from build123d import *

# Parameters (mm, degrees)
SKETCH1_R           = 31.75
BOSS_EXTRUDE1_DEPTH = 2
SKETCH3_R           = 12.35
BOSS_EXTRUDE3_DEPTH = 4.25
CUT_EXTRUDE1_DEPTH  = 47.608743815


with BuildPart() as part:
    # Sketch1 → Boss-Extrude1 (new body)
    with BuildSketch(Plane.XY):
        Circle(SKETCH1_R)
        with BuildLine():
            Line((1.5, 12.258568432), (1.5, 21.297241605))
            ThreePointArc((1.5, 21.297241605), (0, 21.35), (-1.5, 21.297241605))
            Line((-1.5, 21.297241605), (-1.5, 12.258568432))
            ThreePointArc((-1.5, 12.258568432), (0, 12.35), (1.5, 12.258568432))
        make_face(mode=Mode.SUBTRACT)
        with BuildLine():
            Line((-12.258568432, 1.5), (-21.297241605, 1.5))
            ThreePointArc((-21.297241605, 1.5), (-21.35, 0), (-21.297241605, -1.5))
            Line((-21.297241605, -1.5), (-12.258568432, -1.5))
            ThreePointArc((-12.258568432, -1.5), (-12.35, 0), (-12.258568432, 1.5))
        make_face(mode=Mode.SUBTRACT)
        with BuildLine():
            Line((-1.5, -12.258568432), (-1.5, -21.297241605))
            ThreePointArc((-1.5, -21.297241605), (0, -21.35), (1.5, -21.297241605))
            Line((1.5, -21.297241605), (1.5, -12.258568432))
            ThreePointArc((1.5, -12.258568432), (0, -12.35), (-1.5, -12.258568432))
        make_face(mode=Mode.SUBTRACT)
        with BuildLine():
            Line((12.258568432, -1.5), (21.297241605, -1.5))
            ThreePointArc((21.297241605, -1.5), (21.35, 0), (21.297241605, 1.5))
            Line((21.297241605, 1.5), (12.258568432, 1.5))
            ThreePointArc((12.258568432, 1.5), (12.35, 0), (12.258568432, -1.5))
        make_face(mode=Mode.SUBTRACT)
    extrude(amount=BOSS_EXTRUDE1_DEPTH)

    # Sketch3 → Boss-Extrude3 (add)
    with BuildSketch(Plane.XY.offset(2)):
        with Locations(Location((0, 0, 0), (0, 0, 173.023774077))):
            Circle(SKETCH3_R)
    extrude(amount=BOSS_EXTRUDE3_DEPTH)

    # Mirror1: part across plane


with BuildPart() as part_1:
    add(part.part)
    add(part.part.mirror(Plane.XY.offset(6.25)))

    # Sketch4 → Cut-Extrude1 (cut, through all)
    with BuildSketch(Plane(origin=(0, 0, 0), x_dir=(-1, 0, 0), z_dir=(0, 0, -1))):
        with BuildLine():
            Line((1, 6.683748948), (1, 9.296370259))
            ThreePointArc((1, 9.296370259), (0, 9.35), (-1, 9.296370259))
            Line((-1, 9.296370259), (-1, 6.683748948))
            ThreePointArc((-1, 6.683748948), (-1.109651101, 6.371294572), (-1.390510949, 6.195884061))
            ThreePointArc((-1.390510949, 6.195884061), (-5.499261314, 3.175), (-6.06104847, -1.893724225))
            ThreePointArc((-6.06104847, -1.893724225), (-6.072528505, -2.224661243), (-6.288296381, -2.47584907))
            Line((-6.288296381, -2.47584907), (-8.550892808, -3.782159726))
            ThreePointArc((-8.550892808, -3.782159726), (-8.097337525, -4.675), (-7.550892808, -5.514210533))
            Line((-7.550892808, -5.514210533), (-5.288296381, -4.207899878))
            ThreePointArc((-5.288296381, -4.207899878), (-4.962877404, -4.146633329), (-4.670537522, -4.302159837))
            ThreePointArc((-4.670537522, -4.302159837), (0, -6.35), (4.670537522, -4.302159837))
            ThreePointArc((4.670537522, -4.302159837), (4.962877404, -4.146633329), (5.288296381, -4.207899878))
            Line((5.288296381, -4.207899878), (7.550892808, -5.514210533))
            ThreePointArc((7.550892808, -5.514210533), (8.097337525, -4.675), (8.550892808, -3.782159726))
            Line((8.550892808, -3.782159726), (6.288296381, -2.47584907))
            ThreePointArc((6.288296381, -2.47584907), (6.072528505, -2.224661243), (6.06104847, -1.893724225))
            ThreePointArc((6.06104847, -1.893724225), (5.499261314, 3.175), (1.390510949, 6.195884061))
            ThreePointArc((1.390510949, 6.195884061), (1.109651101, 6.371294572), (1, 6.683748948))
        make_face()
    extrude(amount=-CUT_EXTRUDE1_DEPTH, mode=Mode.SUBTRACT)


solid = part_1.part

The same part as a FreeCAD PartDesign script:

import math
import FreeCAD as App
import Part
import Sketcher
from FreeCAD import Vector
Q = App.Units.Quantity

doc = App.newDocument("Part")
params = doc.addObject("Spreadsheet::Sheet", "Params")
for row, (alias, value) in enumerate([
    ("sketch1_diameter", "63.5 mm"),
    ("sketch1_radius", "12.35 mm"),
    ("sketch1_radius2", "21.35 mm"),
    ("pad1_length", "2 mm"),
    ("sketch2_diameter", "24.7 mm"),
    ("pad2_length", "4.25 mm"),
    ("sketch3_radius", "0.5 mm"),
    ("sketch3_radius2", "9.35 mm"),
    ("sketch3_radius3", "6.35 mm"),
], start=1):
    params.set(f"A{row}", alias)
    params.set(f"B{row}", "=" + value)
    params.setAlias(f"B{row}", alias)

body = doc.addObject("PartDesign::Body", "Body")

# Sketch on XY plane
sketch1 = doc.addObject("Sketcher::SketchObject", "Sketch")
body.addObject(sketch1)
sketch1.AttachmentSupport = (doc.XY_Plane, [""])
sketch1.MapMode = "FlatFace"
sketch1.addGeometry(Part.Circle(Vector(0, 0, 0), Vector(0, 0, 1), 31.75), False)
sketch1.addGeometry(Part.LineSegment(Vector(-1.5, -21.297242, 0), Vector(-1.5, -12.258568, 0)), False)
sketch1.addGeometry(Part.ArcOfCircle(Part.Circle(Vector(0, 0, 0), Vector(0, 0, 1), 12.35), math.radians(-96.976226), math.radians(-83.023774)), False)
sketch1.addGeometry(Part.LineSegment(Vector(1.5, -12.258568, 0), Vector(1.5, -21.297242, 0)), False)
sketch1.addGeometry(Part.ArcOfCircle(Part.Circle(Vector(0, 0, 0), Vector(0, 0, 1), 21.35), math.radians(-94.028784), math.radians(-85.971216)), False)
sketch1.addGeometry(Part.LineSegment(Vector(21.297242, -1.5, 0), Vector(12.258568, -1.5, 0)), False)
sketch1.addGeometry(Part.ArcOfCircle(Part.Circle(Vector(0, 0, 0), Vector(0, 0, 1), 12.35), math.radians(-6.976226), math.radians(6.976226)), False)
sketch1.addGeometry(Part.LineSegment(Vector(12.258568, 1.5, 0), Vector(21.297242, 1.5, 0)), False)
sketch1.addGeometry(Part.ArcOfCircle(Part.Circle(Vector(0, 0, 0), Vector(0, 0, 1), 21.35), math.radians(-4.028784), math.radians(4.028784)), False)
sketch1.addGeometry(Part.LineSegment(Vector(-21.297242, 1.5, 0), Vector(-12.258568, 1.5, 0)), False)
sketch1.addGeometry(Part.ArcOfCircle(Part.Circle(Vector(0, 0, 0), Vector(0, 0, 1), 12.35), math.radians(173.023774), math.radians(186.976226)), False)
sketch1.addGeometry(Part.LineSegment(Vector(-12.258568, -1.5, 0), Vector(-21.297242, -1.5, 0)), False)
sketch1.addGeometry(Part.ArcOfCircle(Part.Circle(Vector(0, 0, 0), Vector(0, 0, 1), 21.35), math.radians(175.971216), math.radians(184.028784)), False)
sketch1.addGeometry(Part.LineSegment(Vector(1.5, 21.297242, 0), Vector(1.5, 12.258568, 0)), False)
sketch1.addGeometry(Part.ArcOfCircle(Part.Circle(Vector(0, 0, 0), Vector(0, 0, 1), 12.35), math.radians(83.023774), math.radians(96.976226)), False)
sketch1.addGeometry(Part.LineSegment(Vector(-1.5, 12.258568, 0), Vector(-1.5, 21.297242, 0)), False)
sketch1.addGeometry(Part.ArcOfCircle(Part.Circle(Vector(0, 0, 0), Vector(0, 0, 1), 21.35), math.radians(85.971216), math.radians(94.028784)), False)
sketch1.addConstraint(Sketcher.Constraint("Coincident", 1, 2, 2, 1))
sketch1.addConstraint(Sketcher.Constraint("Coincident", 2, 2, 3, 1))
sketch1.addConstraint(Sketcher.Constraint("Coincident", 3, 2, 4, 2))
sketch1.addConstraint(Sketcher.Constraint("Coincident", 4, 1, 1, 1))
sketch1.addConstraint(Sketcher.Constraint("Coincident", 5, 2, 6, 1))
sketch1.addConstraint(Sketcher.Constraint("Coincident", 6, 2, 7, 1))
sketch1.addConstraint(Sketcher.Constraint("Coincident", 7, 2, 8, 2))
sketch1.addConstraint(Sketcher.Constraint("Coincident", 8, 1, 5, 1))
sketch1.addConstraint(Sketcher.Constraint("Coincident", 9, 2, 10, 1))
sketch1.addConstraint(Sketcher.Constraint("Coincident", 10, 2, 11, 1))
sketch1.addConstraint(Sketcher.Constraint("Coincident", 11, 2, 12, 2))
sketch1.addConstraint(Sketcher.Constraint("Coincident", 12, 1, 9, 1))
sketch1.addConstraint(Sketcher.Constraint("Coincident", 13, 2, 14, 1))
sketch1.addConstraint(Sketcher.Constraint("Coincident", 14, 2, 15, 1))
sketch1.addConstraint(Sketcher.Constraint("Coincident", 15, 2, 16, 2))
sketch1.addConstraint(Sketcher.Constraint("Coincident", 16, 1, 13, 1))
sketch1.addConstraint(Sketcher.Constraint("Vertical", 1))
sketch1.addConstraint(Sketcher.Constraint("Vertical", 3))
sketch1.addConstraint(Sketcher.Constraint("Horizontal", 5))
sketch1.addConstraint(Sketcher.Constraint("Horizontal", 7))
sketch1.addConstraint(Sketcher.Constraint("Horizontal", 9))
sketch1.addConstraint(Sketcher.Constraint("Horizontal", 11))
sketch1.addConstraint(Sketcher.Constraint("Vertical", 13))
sketch1.addConstraint(Sketcher.Constraint("Vertical", 15))
sketch1.addConstraint(Sketcher.Constraint("Coincident", 0, 3, -1, 1))
sketch1.addConstraint(Sketcher.Constraint("Coincident", 2, 3, -1, 1))
sketch1.addConstraint(Sketcher.Constraint("Coincident", 4, 3, -1, 1))
sketch1.addConstraint(Sketcher.Constraint("Coincident", 6, 3, -1, 1))
sketch1.addConstraint(Sketcher.Constraint("Coincident", 8, 3, -1, 1))
sketch1.addConstraint(Sketcher.Constraint("Coincident", 10, 3, -1, 1))
sketch1.addConstraint(Sketcher.Constraint("Coincident", 12, 3, -1, 1))
sketch1.addConstraint(Sketcher.Constraint("Coincident", 14, 3, -1, 1))
sketch1.addConstraint(Sketcher.Constraint("Coincident", 16, 3, -1, 1))
sketch1.addConstraint(Sketcher.Constraint("Equal", 2, 6))
sketch1.addConstraint(Sketcher.Constraint("Equal", 4, 8))
sketch1.addConstraint(Sketcher.Constraint("Equal", 6, 10))
sketch1.addConstraint(Sketcher.Constraint("Equal", 8, 12))
sketch1.addConstraint(Sketcher.Constraint("Equal", 10, 14))
sketch1.addConstraint(Sketcher.Constraint("Equal", 12, 16))
sketch1.addConstraint(Sketcher.Constraint("Horizontal", 1, 2, 2, 2))
sketch1.addConstraint(Sketcher.Constraint("Horizontal", 7, 2, 9, 2))
sketch1.addConstraint(Sketcher.Constraint("Horizontal", 8, 1, 10, 2))
sketch1.addConstraint(Sketcher.Constraint("Horizontal", 13, 2, 14, 2))
sketch1.addConstraint(Sketcher.Constraint("Vertical", 5, 2, 6, 2))
sketch1.addConstraint(Sketcher.Constraint("Vertical", 3, 2, 13, 2))
sketch1.addConstraint(Sketcher.Constraint("Equal", 11, 1))
sketch1.addConstraint(Sketcher.Constraint("Diameter", 0, 63.5))
sketch1.addConstraint(Sketcher.Constraint("Radius", 2, 12.35))
sketch1.addConstraint(Sketcher.Constraint("Radius", 4, 21.35))
sketch1.addConstraint(Sketcher.Constraint("DistanceX", 1, 2, 2, 2, 3.0))
sketch1.setExpression("Constraints[46]", "Params.sketch1_diameter")
sketch1.setExpression("Constraints[47]", "Params.sketch1_radius")
sketch1.setExpression("Constraints[48]", "Params.sketch1_radius2")
pad1 = doc.addObject("PartDesign::Pad", "Pad")
body.addObject(pad1)
pad1.Profile = sketch1
pad1.setExpression("Length", "Params.pad1_length")

# Sketch on XY plane
sketch2 = doc.addObject("Sketcher::SketchObject", "Sketch001")
body.addObject(sketch2)
sketch2.AttachmentSupport = (doc.XY_Plane, [""])
sketch2.MapMode = "FlatFace"
sketch2.AttachmentOffset = App.Placement(Vector(0, 0, 2), App.Rotation())
sketch2.addGeometry(Part.Circle(Vector(0, 0, 0), Vector(0, 0, 1), 12.35), False)
sketch2.addConstraint(Sketcher.Constraint("Coincident", 0, 3, -1, 1))
sketch2.addConstraint(Sketcher.Constraint("Diameter", 0, 24.7))
sketch2.setExpression("Constraints[1]", "Params.sketch2_diameter")
pad2 = doc.addObject("PartDesign::Pad", "Pad001")
body.addObject(pad2)
pad2.Profile = sketch2
pad2.setExpression("Length", "Params.pad2_length")
body2 = doc.addObject("PartDesign::Body", "Body001")
doc.recompute()

body2.BaseFeature = body
doc.recompute()

mirroring = doc.addObject("Part::Mirroring", "Mirroring")
mirroring.Source = body
mirroring.Base = Vector(0, 0, 6.25)
mirroring.Normal = Vector(0, 0, 1)
body3 = doc.addObject("PartDesign::Body", "Body002")
body3.BaseFeature = mirroring
boolean = doc.addObject("PartDesign::Boolean", "Boolean")
body2.addObject(boolean)
boolean.Type = "Fuse"
boolean.addObjects([body3])
doc.recompute()

# Sketch on XY plane
sketch3 = doc.addObject("Sketcher::SketchObject", "Sketch002")
body2.addObject(sketch3)
sketch3.AttachmentSupport = (doc.getObject("XY_Plane001"), [""])
sketch3.MapMode = "FlatFace"
sketch3.addGeometry(Part.LineSegment(Vector(-1, 6.683749, 0), Vector(-1, 9.29637, 0)), False)
sketch3.addGeometry(Part.ArcOfCircle(Part.Circle(Vector(0, 0, 0), Vector(0, 0, 1), 9.35), math.radians(83.860366), math.radians(96.139634)), False)
sketch3.addGeometry(Part.LineSegment(Vector(1, 9.29637, 0), Vector(1, 6.683749, 0)), False)
sketch3.addGeometry(Part.ArcOfCircle(Part.Circle(Vector(1.5, 6.683749, 0), Vector(0, 0, 1), 0.5), math.radians(180), math.radians(257.350981)), False)
sketch3.addGeometry(Part.ArcOfCircle(Part.Circle(Vector(0, 0, 0), Vector(0, 0, 1), 6.35), math.radians(-17.350981), math.radians(77.350981)), False)
sketch3.addGeometry(Part.ArcOfCircle(Part.Circle(Vector(6.538296, -2.042836, 0), Vector(0, 0, 1), 0.5), math.radians(162.649019), math.radians(240)), False)
sketch3.addGeometry(Part.LineSegment(Vector(6.288296, -2.475849, 0), Vector(8.550893, -3.78216, 0)), False)
sketch3.addGeometry(Part.ArcOfCircle(Part.Circle(Vector(0, 0, 0), Vector(0, 0, 1), 9.35), math.radians(-36.139634), math.radians(-23.860366)), False)
sketch3.addGeometry(Part.LineSegment(Vector(7.550893, -5.514211, 0), Vector(5.288296, -4.2079, 0)), False)
sketch3.addGeometry(Part.ArcOfCircle(Part.Circle(Vector(5.038296, -4.640913, 0), Vector(0, 0, 1), 0.5), math.radians(60), math.radians(137.350981)), False)
sketch3.addGeometry(Part.ArcOfCircle(Part.Circle(Vector(0, 0, 0), Vector(0, 0, 1), 6.35), math.radians(-137.350981), math.radians(-42.649019)), False)
sketch3.addGeometry(Part.ArcOfCircle(Part.Circle(Vector(-5.038296, -4.640913, 0), Vector(0, 0, 1), 0.5), math.radians(42.649019), math.radians(120)), False)
sketch3.addGeometry(Part.LineSegment(Vector(-5.288296, -4.2079, 0), Vector(-7.550893, -5.514211, 0)), False)
sketch3.addGeometry(Part.ArcOfCircle(Part.Circle(Vector(0, 0, 0), Vector(0, 0, 1), 9.35), math.radians(-156.139634), math.radians(-143.860366)), False)
sketch3.addGeometry(Part.LineSegment(Vector(-8.550893, -3.78216, 0), Vector(-6.288296, -2.475849, 0)), False)
sketch3.addGeometry(Part.ArcOfCircle(Part.Circle(Vector(-6.538296, -2.042836, 0), Vector(0, 0, 1), 0.5), math.radians(-60), math.radians(17.350981)), False)
sketch3.addGeometry(Part.ArcOfCircle(Part.Circle(Vector(0, 0, 0), Vector(0, 0, 1), 6.35), math.radians(102.649019), math.radians(197.350981)), False)
sketch3.addGeometry(Part.ArcOfCircle(Part.Circle(Vector(-1.5, 6.683749, 0), Vector(0, 0, 1), 0.5), math.radians(-77.350981), math.radians(0)), False)
sketch3.addConstraint(Sketcher.Constraint("Coincident", 0, 2, 1, 2))
sketch3.addConstraint(Sketcher.Constraint("Coincident", 1, 1, 2, 1))
sketch3.addConstraint(Sketcher.Constraint("Tangent", 2, 2, 3, 1))
sketch3.addConstraint(Sketcher.Constraint("Tangent", 3, 2, 4, 2))
sketch3.addConstraint(Sketcher.Constraint("Tangent", 4, 1, 5, 1))
sketch3.addConstraint(Sketcher.Constraint("Tangent", 5, 2, 6, 1))
sketch3.addConstraint(Sketcher.Constraint("Coincident", 6, 2, 7, 2))
sketch3.addConstraint(Sketcher.Constraint("Coincident", 7, 1, 8, 1))
sketch3.addConstraint(Sketcher.Constraint("Tangent", 8, 2, 9, 1))
sketch3.addConstraint(Sketcher.Constraint("Tangent", 9, 2, 10, 2))
sketch3.addConstraint(Sketcher.Constraint("Tangent", 10, 1, 11, 1))
sketch3.addConstraint(Sketcher.Constraint("Tangent", 11, 2, 12, 1))
sketch3.addConstraint(Sketcher.Constraint("Coincident", 12, 2, 13, 2))
sketch3.addConstraint(Sketcher.Constraint("Coincident", 13, 1, 14, 1))
sketch3.addConstraint(Sketcher.Constraint("Tangent", 14, 2, 15, 1))
sketch3.addConstraint(Sketcher.Constraint("Tangent", 15, 2, 16, 2))
sketch3.addConstraint(Sketcher.Constraint("Tangent", 16, 1, 17, 1))
sketch3.addConstraint(Sketcher.Constraint("Tangent", 17, 2, 0, 1))
sketch3.addConstraint(Sketcher.Constraint("Vertical", 0))
sketch3.addConstraint(Sketcher.Constraint("Vertical", 2))
sketch3.addConstraint(Sketcher.Constraint("Coincident", 1, 3, -1, 1))
sketch3.addConstraint(Sketcher.Constraint("Coincident", 4, 3, -1, 1))
sketch3.addConstraint(Sketcher.Constraint("Coincident", 7, 3, -1, 1))
sketch3.addConstraint(Sketcher.Constraint("Coincident", 10, 3, -1, 1))
sketch3.addConstraint(Sketcher.Constraint("Coincident", 13, 3, -1, 1))
sketch3.addConstraint(Sketcher.Constraint("Coincident", 16, 3, -1, 1))
sketch3.addConstraint(Sketcher.Constraint("Equal", 3, 5))
sketch3.addConstraint(Sketcher.Constraint("Equal", 1, 7))
sketch3.addConstraint(Sketcher.Constraint("Equal", 5, 9))
sketch3.addConstraint(Sketcher.Constraint("Equal", 4, 10))
sketch3.addConstraint(Sketcher.Constraint("Equal", 9, 11))
sketch3.addConstraint(Sketcher.Constraint("Equal", 7, 13))
sketch3.addConstraint(Sketcher.Constraint("Equal", 11, 15))
sketch3.addConstraint(Sketcher.Constraint("Equal", 10, 16))
sketch3.addConstraint(Sketcher.Constraint("Equal", 15, 17))
sketch3.addConstraint(Sketcher.Constraint("Symmetric", 8, 2, 11, 2, -2))
sketch3.addConstraint(Sketcher.Constraint("Symmetric", 5, 2, 14, 2, -2))
sketch3.addConstraint(Sketcher.Constraint("Parallel", 6, 8))
sketch3.addConstraint(Sketcher.Constraint("Horizontal", 3, 3, 17, 3))
sketch3.addConstraint(Sketcher.Constraint("Equal", 6, 8))
sketch3.addConstraint(Sketcher.Constraint("Radius", 3, 0.5))
sketch3.addConstraint(Sketcher.Constraint("Angle", 6, Q("-30 deg")))
sketch3.addConstraint(Sketcher.Constraint("Radius", 1, 9.35))
sketch3.addConstraint(Sketcher.Constraint("Radius", 4, 6.35))
sketch3.addConstraint(Sketcher.Constraint("DistanceX", 0, 2, -1, 1, 1.0))
sketch3.addConstraint(Sketcher.Constraint("DistanceX", 7, 1, 6, 2, 1.0))
sketch3.setExpression("Constraints[40]", "Params.sketch3_radius")
sketch3.setExpression("Constraints[42]", "Params.sketch3_radius2")
sketch3.setExpression("Constraints[43]", "Params.sketch3_radius3")
pocket1 = doc.addObject("PartDesign::Pocket", "Pocket")
body2.addObject(pocket1)
pocket1.Profile = sketch3
pocket1.Type = "ThroughAll"
pocket1.Reversed = True
mirroring.Visibility = False

doc.recompute()
